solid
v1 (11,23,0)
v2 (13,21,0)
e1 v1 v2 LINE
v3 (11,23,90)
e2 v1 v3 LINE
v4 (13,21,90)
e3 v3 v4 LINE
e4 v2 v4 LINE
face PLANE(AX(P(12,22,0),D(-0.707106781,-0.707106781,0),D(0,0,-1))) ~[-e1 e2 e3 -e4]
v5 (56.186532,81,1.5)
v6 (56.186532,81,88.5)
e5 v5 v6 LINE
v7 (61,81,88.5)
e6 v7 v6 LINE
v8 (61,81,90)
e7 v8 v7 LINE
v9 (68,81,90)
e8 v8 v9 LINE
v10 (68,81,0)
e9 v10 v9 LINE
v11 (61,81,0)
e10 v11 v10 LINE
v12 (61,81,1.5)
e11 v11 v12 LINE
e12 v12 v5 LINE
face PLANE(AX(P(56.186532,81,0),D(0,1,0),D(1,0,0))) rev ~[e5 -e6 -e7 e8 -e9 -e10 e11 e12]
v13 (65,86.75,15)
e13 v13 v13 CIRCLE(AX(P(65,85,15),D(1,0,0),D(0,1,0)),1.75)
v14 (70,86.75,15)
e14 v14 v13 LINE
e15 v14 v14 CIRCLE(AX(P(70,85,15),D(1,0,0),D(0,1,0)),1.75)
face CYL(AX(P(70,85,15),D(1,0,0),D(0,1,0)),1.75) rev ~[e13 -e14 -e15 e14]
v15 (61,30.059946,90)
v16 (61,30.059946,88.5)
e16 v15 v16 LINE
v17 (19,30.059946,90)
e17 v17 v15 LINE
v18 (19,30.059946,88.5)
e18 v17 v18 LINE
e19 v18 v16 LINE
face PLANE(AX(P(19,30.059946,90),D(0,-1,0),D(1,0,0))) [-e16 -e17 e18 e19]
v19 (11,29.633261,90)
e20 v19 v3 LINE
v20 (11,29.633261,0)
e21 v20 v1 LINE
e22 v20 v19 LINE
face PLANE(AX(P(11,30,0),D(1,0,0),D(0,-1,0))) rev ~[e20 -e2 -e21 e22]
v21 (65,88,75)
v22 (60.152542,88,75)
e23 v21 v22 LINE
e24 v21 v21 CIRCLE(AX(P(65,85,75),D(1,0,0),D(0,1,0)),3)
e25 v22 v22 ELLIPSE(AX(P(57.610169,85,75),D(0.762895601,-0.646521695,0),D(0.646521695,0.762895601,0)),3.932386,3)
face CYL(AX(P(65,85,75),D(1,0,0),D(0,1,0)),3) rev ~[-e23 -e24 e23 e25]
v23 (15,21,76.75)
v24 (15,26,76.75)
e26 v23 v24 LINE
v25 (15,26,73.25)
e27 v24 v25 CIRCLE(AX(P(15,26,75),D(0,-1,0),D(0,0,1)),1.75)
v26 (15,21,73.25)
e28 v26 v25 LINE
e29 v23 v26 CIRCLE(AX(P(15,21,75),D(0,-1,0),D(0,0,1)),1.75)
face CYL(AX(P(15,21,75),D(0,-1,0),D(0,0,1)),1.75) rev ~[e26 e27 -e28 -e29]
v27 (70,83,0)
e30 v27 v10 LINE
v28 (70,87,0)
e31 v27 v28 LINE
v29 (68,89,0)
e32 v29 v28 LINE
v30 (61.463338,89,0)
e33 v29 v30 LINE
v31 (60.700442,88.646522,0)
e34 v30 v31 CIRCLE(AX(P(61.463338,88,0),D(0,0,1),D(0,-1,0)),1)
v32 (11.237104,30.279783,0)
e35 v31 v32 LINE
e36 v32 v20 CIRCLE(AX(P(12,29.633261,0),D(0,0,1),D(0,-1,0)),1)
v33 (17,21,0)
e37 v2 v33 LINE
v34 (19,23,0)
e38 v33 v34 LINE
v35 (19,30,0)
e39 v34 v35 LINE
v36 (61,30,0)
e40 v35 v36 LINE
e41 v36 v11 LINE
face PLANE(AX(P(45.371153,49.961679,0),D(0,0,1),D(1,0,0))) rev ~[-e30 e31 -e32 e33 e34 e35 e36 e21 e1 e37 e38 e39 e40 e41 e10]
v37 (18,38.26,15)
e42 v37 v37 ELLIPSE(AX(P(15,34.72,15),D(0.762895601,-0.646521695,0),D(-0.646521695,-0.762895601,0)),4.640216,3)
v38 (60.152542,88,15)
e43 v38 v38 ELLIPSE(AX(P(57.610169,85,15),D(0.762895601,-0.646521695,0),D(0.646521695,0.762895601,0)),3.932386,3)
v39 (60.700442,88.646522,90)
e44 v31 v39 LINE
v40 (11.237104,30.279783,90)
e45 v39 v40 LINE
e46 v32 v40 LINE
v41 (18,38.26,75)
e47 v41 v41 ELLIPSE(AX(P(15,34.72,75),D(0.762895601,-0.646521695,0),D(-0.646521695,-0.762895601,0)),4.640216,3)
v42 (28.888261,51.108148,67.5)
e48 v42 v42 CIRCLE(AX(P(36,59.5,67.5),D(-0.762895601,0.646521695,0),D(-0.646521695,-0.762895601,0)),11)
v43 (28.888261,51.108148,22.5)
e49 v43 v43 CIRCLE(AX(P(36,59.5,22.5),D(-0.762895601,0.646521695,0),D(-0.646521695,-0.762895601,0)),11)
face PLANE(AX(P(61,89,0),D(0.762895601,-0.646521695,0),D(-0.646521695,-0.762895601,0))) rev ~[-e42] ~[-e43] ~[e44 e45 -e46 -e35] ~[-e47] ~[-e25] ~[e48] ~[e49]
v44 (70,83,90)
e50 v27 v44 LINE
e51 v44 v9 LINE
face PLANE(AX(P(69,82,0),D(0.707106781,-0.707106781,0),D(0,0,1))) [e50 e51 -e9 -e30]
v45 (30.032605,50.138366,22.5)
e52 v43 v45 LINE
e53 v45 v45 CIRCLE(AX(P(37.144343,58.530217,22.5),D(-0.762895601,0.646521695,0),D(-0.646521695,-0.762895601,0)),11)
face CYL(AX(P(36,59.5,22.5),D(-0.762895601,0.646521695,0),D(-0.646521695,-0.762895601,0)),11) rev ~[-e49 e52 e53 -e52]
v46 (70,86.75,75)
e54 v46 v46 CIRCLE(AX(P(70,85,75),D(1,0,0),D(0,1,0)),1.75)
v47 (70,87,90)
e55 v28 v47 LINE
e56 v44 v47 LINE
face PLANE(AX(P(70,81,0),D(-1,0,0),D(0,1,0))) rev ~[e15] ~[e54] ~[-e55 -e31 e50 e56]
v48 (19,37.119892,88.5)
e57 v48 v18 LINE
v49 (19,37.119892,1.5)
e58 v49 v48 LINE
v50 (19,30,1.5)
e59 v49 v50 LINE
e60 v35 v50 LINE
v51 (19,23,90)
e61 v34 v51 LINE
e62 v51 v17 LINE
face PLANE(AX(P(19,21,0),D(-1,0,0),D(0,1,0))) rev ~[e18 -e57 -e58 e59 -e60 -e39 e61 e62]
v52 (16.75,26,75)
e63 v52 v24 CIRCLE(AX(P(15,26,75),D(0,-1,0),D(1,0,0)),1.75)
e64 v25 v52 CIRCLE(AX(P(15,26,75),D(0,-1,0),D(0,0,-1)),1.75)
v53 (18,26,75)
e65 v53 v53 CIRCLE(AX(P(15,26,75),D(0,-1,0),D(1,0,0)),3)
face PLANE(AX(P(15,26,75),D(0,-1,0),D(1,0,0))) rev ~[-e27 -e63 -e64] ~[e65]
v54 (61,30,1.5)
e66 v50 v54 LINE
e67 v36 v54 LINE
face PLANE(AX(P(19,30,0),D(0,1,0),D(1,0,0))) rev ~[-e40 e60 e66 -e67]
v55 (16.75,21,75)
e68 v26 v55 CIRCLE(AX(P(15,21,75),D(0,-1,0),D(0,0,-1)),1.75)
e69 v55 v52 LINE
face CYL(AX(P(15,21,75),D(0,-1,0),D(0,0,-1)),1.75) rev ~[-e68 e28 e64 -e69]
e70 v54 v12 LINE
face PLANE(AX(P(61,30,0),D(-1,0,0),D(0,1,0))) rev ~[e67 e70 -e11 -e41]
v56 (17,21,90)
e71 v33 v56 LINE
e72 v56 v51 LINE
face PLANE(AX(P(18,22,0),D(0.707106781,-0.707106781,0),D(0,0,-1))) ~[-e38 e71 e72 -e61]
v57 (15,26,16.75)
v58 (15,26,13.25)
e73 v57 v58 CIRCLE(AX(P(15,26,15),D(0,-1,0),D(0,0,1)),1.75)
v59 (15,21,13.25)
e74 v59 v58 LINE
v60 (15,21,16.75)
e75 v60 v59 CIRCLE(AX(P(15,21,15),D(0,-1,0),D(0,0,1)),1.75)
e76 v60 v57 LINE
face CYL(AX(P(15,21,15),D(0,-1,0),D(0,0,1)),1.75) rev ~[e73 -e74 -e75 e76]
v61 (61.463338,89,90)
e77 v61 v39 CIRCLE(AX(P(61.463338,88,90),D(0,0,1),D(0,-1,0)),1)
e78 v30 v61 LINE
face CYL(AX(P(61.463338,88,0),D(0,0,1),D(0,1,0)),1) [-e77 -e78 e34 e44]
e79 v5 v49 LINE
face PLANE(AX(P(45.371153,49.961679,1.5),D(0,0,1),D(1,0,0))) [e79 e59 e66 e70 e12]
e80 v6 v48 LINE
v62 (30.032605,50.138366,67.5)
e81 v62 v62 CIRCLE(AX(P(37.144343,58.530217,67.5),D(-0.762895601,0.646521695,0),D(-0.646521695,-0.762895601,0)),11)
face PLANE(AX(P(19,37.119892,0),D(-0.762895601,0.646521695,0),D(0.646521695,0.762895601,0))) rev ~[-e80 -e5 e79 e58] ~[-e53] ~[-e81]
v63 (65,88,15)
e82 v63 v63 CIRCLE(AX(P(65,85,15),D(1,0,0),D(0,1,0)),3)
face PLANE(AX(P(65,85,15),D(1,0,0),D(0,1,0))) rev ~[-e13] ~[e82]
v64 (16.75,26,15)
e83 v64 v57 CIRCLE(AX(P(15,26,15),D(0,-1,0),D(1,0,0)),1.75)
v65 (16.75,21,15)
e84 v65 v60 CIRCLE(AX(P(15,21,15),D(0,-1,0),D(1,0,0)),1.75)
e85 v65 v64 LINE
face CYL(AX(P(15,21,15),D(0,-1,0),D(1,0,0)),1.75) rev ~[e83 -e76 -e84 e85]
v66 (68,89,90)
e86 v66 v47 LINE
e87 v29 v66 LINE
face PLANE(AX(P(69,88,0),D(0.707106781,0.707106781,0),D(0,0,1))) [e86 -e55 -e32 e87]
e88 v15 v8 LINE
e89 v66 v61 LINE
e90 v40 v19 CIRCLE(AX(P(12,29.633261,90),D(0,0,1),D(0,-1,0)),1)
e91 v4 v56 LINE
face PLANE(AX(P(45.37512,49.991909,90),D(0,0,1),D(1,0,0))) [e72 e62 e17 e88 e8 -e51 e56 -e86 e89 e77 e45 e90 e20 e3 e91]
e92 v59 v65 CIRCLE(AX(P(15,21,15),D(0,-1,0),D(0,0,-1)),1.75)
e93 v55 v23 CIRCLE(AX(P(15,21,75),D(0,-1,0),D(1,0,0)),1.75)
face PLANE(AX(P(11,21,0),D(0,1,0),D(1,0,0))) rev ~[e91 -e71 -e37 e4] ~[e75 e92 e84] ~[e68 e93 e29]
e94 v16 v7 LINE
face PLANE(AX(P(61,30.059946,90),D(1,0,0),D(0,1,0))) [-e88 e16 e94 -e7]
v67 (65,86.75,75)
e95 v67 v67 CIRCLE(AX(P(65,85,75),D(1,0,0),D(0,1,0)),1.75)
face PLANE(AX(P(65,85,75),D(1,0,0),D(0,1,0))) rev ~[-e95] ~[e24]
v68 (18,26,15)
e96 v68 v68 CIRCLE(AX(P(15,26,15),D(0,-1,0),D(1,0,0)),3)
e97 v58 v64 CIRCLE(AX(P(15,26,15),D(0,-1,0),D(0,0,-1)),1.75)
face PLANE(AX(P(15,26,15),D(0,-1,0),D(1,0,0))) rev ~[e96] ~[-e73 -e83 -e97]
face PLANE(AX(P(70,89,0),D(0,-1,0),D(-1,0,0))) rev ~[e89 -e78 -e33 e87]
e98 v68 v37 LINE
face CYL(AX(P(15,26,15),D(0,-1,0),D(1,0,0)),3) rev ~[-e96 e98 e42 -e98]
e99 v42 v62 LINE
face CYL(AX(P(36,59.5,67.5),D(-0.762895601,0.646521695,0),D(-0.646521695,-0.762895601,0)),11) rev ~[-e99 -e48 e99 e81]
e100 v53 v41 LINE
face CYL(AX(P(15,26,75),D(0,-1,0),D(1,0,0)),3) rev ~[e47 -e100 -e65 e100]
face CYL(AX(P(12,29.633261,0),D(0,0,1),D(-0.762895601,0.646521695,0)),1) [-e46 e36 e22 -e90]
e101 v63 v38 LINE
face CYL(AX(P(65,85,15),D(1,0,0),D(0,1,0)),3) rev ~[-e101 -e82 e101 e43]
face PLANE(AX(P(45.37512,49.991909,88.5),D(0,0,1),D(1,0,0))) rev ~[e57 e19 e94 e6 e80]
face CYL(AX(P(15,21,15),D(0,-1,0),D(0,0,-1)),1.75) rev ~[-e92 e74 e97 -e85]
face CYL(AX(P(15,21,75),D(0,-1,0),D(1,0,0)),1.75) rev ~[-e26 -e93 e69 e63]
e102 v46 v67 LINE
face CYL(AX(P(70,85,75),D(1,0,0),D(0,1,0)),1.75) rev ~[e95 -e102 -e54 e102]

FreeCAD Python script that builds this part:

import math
import FreeCAD as App
import Part
import Sketcher
Q = App.Units.Quantity


def edges_at(feature, points):
    """Names of the edges that pass closest to the given points."""
    edges = feature.Shape.Edges
    near = lambda p: min(range(len(edges)), key=lambda i: edges[i].distToShape(Part.Vertex(*p))[0])
    return sorted({f"Edge{near(p) + 1}" for p in points})


def add_polygon(sketch, points):
    """Adds a closed chain of lines whose ends are joined by coincident constraints."""
    first, n = sketch.GeometryCount, len(points)
    for a, b in zip(points, points[1:] + points[:1]):
        sketch.addGeometry(Part.LineSegment(App.Vector(*a, 0), App.Vector(*b, 0)), False)
    for i in range(n):
        sketch.addConstraint(Sketcher.Constraint("Coincident", first + i, 2, first + (i + 1) % n, 1))

doc = App.newDocument("Part")
params = doc.addObject("Spreadsheet::Sheet", "Params")
for row, (alias, value) in enumerate([
    ("sketch1_width", "9 mm"),
    ("sketch1_width2", "8 mm"),
    ("pad1_length", "90 mm"),
    ("sketch2_diameter", "22 mm"),
    ("pocket1_length", "25 mm"),
    ("sketch3_radius", "1.75 mm"),
    ("pocket2_length", "25 mm"),
    ("sketch4_diameter", "3.5 mm"),
    ("pocket3_length", "25 mm"),
    ("sketch5_diameter", "6 mm"),
    ("pocket4_length", "25 mm"),
    ("sketch6_diameter", "6 mm"),
    ("pocket5_length", "25 mm"),
    ("chamfer_size", "2 mm"),
    ("fillet_radius", "1 mm"),
    ("sketch7_width", "42 mm"),
    ("pad2_length", "1.5 mm"),
    ("sketch8_width", "42 mm"),
    ("sketch8_height", "51 mm"),
    ("pad3_length", "1.5 mm"),
], start=1):
    params.set(f"A{row}", alias)
    params.set(f"B{row}", "=" + value)
    params.setAlias(f"B{row}", alias)

body = doc.addObject("PartDesign::Body", "Body")

sketch1 = body.newObject("Sketcher::SketchObject", "Sketch")
sketch1.AttachmentSupport = (doc.getObject("XY_Plane"), [""])
sketch1.MapMode = "FlatFace"
add_polygon(sketch1, [(70, 89), (61, 89), (11, 30), (11, 21), (19, 21), (19, 37), (56, 81), (70, 81)])
sketch1.addConstraint([
    Sketcher.Constraint("Horizontal", 0),
    Sketcher.Constraint("Vertical", 2),
    Sketcher.Constraint("Horizontal", 3),
    Sketcher.Constraint("Vertical", 4),
    Sketcher.Constraint("Horizontal", 6),
    Sketcher.Constraint("Vertical", 7),
    Sketcher.Constraint("Parallel", 1, 5),
    Sketcher.Constraint("Equal", 0, 2),
    Sketcher.Constraint("Equal", 3, 7),
    Sketcher.Constraint("DistanceX", 0, 2, 0, 1, Q("9 mm")),
    Sketcher.Constraint("DistanceX", 3, 1, 3, 2, Q("8 mm")),
    Sketcher.Constraint("DistanceX", -1, 1, 0, 2, Q("61 mm")),
    Sketcher.Constraint("DistanceY", -1, 1, 0, 2, Q("89 mm")),
    Sketcher.Constraint("DistanceX", -1, 1, 1, 2, Q("11 mm")),
    Sketcher.Constraint("DistanceY", -1, 1, 1, 2, Q("30 mm")),
    Sketcher.Constraint("DistanceX", 6, 1, 6, 2, Q("13.813468 mm")),
])
sketch1.setExpression("Constraints[17]", "Params.sketch1_width")
sketch1.setExpression("Constraints[18]", "Params.sketch1_width2")
pad1 = body.newObject("PartDesign::Pad", "Pad")
pad1.Profile = sketch1
pad1.setExpression("Length", "Params.pad1_length")

sketch2 = body.newObject("Sketcher::SketchObject", "Sketch001")
sketch2.Placement = App.Placement(App.Vector(-8.39475, 7.114195, 0), App.Rotation(App.Vector(-0.646521695, -0.762895601, 0), App.Vector(0, 0, 1), App.Vector(-0.762895601, 0.646521695, 0), "ZXY"))
sketch2.addGeometry([
    Part.Circle(App.Vector(-69, 68, 0), App.Vector(0, 0, 1), 11),
    Part.Circle(App.Vector(-69, 23, 0), App.Vector(0, 0, 1), 11),
], False)
sketch2.addConstraint([
    Sketcher.Constraint("Equal", 0, 1),
    Sketcher.Constraint("Vertical", 0, 3, 1, 3),
    Sketcher.Constraint("Diameter", 0, Q("22 mm")),
    Sketcher.Constraint("DistanceY", 1, 3, 0, 3, Q("45 mm")),
    Sketcher.Constraint("DistanceY", -1, 1, 0, 3, Q("67.5 mm")),
    Sketcher.Constraint("DistanceX", 0, 3, -1, 1, Q("68.667069 mm")),
])
sketch2.setExpression("Constraints[2]", "Params.sketch2_diameter")
pocket1 = body.newObject("PartDesign::Pocket", "Pocket")
pocket1.Profile = sketch2
pocket1.setExpression("Length", "Params.pocket1_length")

sketch3 = body.newObject("Sketcher::SketchObject", "Sketch002")
sketch3.AttachmentSupport = (doc.getObject("XZ_Plane"), [""])
sketch3.MapMode = "FlatFace"
sketch3.AttachmentOffset = App.Placement(App.Vector(0, 0, -21), App.Rotation())
sketch3.addGeometry([
    Part.ArcOfCircle(Part.Circle(App.Vector(15, 75, 0), App.Vector(0, 0, 1), 1.8), math.radians(0), math.radians(90)),
    Part.ArcOfCircle(Part.Circle(App.Vector(15, 75, 0), App.Vector(0, 0, 1), 1.8), math.radians(90), math.radians(270)),
    Part.ArcOfCircle(Part.Circle(App.Vector(15, 75, 0), App.Vector(0, 0, 1), 1.8), math.radians(-90), math.radians(0)),
    Part.ArcOfCircle(Part.Circle(App.Vector(15, 15, 0), App.Vector(0, 0, 1), 1.8), math.radians(0), math.radians(90)),
    Part.ArcOfCircle(Part.Circle(App.Vector(15, 15, 0), App.Vector(0, 0, 1), 1.8), math.radians(90), math.radians(270)),
    Part.ArcOfCircle(Part.Circle(App.Vector(15, 15, 0), App.Vector(0, 0, 1), 1.8), math.radians(-90), math.radians(0)),
], False)
sketch3.addConstraint([
    Sketcher.Constraint("Tangent", 0, 2, 1, 1),
    Sketcher.Constraint("Tangent", 1, 2, 2, 1),
    Sketcher.Constraint("Tangent", 2, 2, 0, 1),
    Sketcher.Constraint("Tangent", 3, 2, 4, 1),
    Sketcher.Constraint("Tangent", 4, 2, 5, 1),
    Sketcher.Constraint("Tangent", 5, 2, 3, 1),
    Sketcher.Constraint("Equal", 2, 3),
    Sketcher.Constraint("Horizontal", 1, 3, 2, 2),
    Sketcher.Constraint("Horizontal", 4, 3, 5, 2),
    Sketcher.Constraint("Vertical", 2, 3, 3, 3),
    Sketcher.Constraint("Vertical", 5, 3, 0, 2),
    Sketcher.Constraint("Vertical", 0, 2, 1, 2),
    Sketcher.Constraint("Vertical", 1, 2, 3, 2),
    Sketcher.Constraint("Vertical", 3, 2, 4, 2),
    Sketcher.Constraint("Radius", 0, Q("1.75 mm")),
    Sketcher.Constraint("DistanceX", -1, 1, 0, 3, Q("15 mm")),
    Sketcher.Constraint("DistanceY", -1, 1, 0, 3, Q("75 mm")),
    Sketcher.Constraint("DistanceY", -1, 1, 3, 3, Q("15 mm")),
])
sketch3.setExpression("Constraints[14]", "Params.sketch3_radius")
pocket2 = body.newObject("PartDesign::Pocket", "Pocket001")
pocket2.Profile = sketch3
pocket2.setExpression("Length", "Params.pocket2_length")

sketch4 = body.newObject("Sketcher::SketchObject", "Sketch003")
sketch4.AttachmentSupport = (doc.getObject("YZ_Plane"), [""])
sketch4.MapMode = "FlatFace"
sketch4.AttachmentOffset = App.Placement(App.Vector(0, 0, 70), App.Rotation())
sketch4.addGeometry([
    Part.Circle(App.Vector(85, 75, 0), App.Vector(0, 0, 1), 1.8),
    Part.Circle(App.Vector(85, 15, 0), App.Vector(0, 0, 1), 1.8),
], False)
sketch4.addConstraint([
    Sketcher.Constraint("Equal", 0, 1),
    Sketcher.Constraint("Vertical", 0, 3, 1, 3),
    Sketcher.Constraint("Diameter", 0, Q("3.5 mm")),
    Sketcher.Constraint("DistanceX", -1, 1, 0, 3, Q("85 mm")),
    Sketcher.Constraint("DistanceY", -1, 1, 0, 3, Q("75 mm")),
    Sketcher.Constraint("DistanceY", -1, 1, 1, 3, Q("15 mm")),
])
sketch4.setExpression("Constraints[2]", "Params.sketch4_diameter")
pocket3 = body.newObject("PartDesign::Pocket", "Pocket002")
pocket3.Profile = sketch4
pocket3.setExpression("Length", "Params.pocket3_length")

sketch5 = body.newObject("Sketcher::SketchObject", "Sketch004")
sketch5.AttachmentSupport = (doc.getObject("YZ_Plane"), [""])
sketch5.MapMode = "FlatFace"
sketch5.AttachmentOffset = App.Placement(App.Vector(0, 0, 65), App.Rotation())
sketch5.addGeometry([
    Part.Circle(App.Vector(85, 75, 0), App.Vector(0, 0, 1), 3),
    Part.Circle(App.Vector(85, 15, 0), App.Vector(0, 0, 1), 3),
], False)
sketch5.addConstraint([
    Sketcher.Constraint("Equal", 0, 1),
    Sketcher.Constraint("Vertical", 0, 3, 1, 3),
    Sketcher.Constraint("Diameter", 0, Q("6 mm")),
    Sketcher.Constraint("DistanceX", -1, 1, 0, 3, Q("85 mm")),
    Sketcher.Constraint("DistanceY", -1, 1, 0, 3, Q("75 mm")),
    Sketcher.Constraint("DistanceY", -1, 1, 1, 3, Q("15 mm")),
])
sketch5.setExpression("Constraints[2]", "Params.sketch5_diameter")
pocket4 = body.newObject("PartDesign::Pocket", "Pocket003")
pocket4.Profile = sketch5
pocket4.setExpression("Length", "Params.pocket4_length")

sketch6 = body.newObject("Sketcher::SketchObject", "Sketch005")
sketch6.AttachmentSupport = (doc.getObject("XZ_Plane"), [""])
sketch6.MapMode = "FlatFace"
sketch6.AttachmentOffset = App.Placement(App.Vector(0, 0, -26), App.Rotation())
sketch6.addGeometry([
    Part.Circle(App.Vector(15, 75, 0), App.Vector(0, 0, 1), 3),
    Part.Circle(App.Vector(15, 15, 0), App.Vector(0, 0, 1), 3),
], False)
sketch6.addConstraint([
    Sketcher.Constraint("Equal", 0, 1),
    Sketcher.Constraint("Vertical", 0, 3, 1, 3),
    Sketcher.Constraint("Diameter", 0, Q("6 mm")),
    Sketcher.Constraint("DistanceX", -1, 1, 0, 3, Q("15 mm")),
    Sketcher.Constraint("DistanceY", -1, 1, 0, 3, Q("75 mm")),
    Sketcher.Constraint("DistanceY", -1, 1, 1, 3, Q("15 mm")),
])
sketch6.setExpression("Constraints[2]", "Params.sketch6_diameter")
pocket5 = body.newObject("PartDesign::Pocket", "Pocket004")
pocket5.Profile = sketch6
pocket5.setExpression("Length", "Params.pocket5_length")
doc.recompute()

chamfer = body.newObject("PartDesign::Chamfer", "Chamfer")
chamfer.Base = (pocket5, edges_at(pocket5, [
    (70, 81, 45),
    (70, 89, 45),
    (19, 21, 45),
    (11, 21, 45),
]))
chamfer.setExpression("Size", "Params.chamfer_size")
doc.recompute()

fillet = body.newObject("PartDesign::Fillet", "Fillet")
fillet.Base = (chamfer, edges_at(chamfer, [(61, 89, 45), (11, 30, 45)]))
fillet.setExpression("Radius", "Params.fillet_radius")

sketch7 = body.newObject("Sketcher::SketchObject", "Sketch006")
sketch7.AttachmentSupport = (doc.getObject("XY_Plane"), [""])
sketch7.MapMode = "FlatFace"
sketch7.AttachmentOffset = App.Placement(App.Vector(0, 0, 90), App.Rotation())
add_polygon(sketch7, [(19, 37.1), (19, 30.1), (61, 30.1), (61, 81), (56.2, 81)])
sketch7.addConstraint([
    Sketcher.Constraint("Vertical", 0),
    Sketcher.Constraint("Horizontal", 1),
    Sketcher.Constraint("Vertical", 2),
    Sketcher.Constraint("Horizontal", 3),
    Sketcher.Constraint("DistanceX", 1, 1, 1, 2, Q("42 mm")),
    Sketcher.Constraint("DistanceX", -1, 1, 0, 2, Q("19 mm")),
    Sketcher.Constraint("DistanceY", -1, 1, 2, 2, Q("81 mm")),
    Sketcher.Constraint("DistanceX", 3, 2, 3, 1, Q("4.813468 mm")),
    Sketcher.Constraint("Distance", 4, Q("57.517841 mm")),
    Sketcher.Constraint("DistanceY", 0, 2, 0, 1, Q("7.059946 mm")),
])
sketch7.setExpression("Constraints[9]", "Params.sketch7_width")
pad2 = body.newObject("PartDesign::Pad", "Pad001")
pad2.Profile = sketch7
pad2.setExpression("Length", "Params.pad2_length")
pad2.Reversed = True

sketch8 = body.newObject("Sketcher::SketchObject", "Sketch007")
sketch8.AttachmentSupport = (doc.getObject("XY_Plane"), [""])
sketch8.MapMode = "FlatFace"
add_polygon(sketch8, [(61, 30), (61, 81), (56.2, 81), (19, 37.1), (19, 30)])
sketch8.addConstraint([
    Sketcher.Constraint("Vertical", 0),
    Sketcher.Constraint("Horizontal", 1),
    Sketcher.Constraint("Vertical", 3),
    Sketcher.Constraint("Horizontal", 4),
    Sketcher.Constraint("DistanceX", 4, 1, 4, 2, Q("42 mm")),
    Sketcher.Constraint("DistanceY", 0, 1, 0, 2, Q("51 mm")),
    Sketcher.Constraint("DistanceX", -1, 1, 0, 2, Q("61 mm")),
    Sketcher.Constraint("DistanceY", -1, 1, 0, 2, Q("81 mm")),
    Sketcher.Constraint("DistanceX", 1, 2, 1, 1, Q("4.813468 mm")),
    Sketcher.Constraint("Distance", 2, Q("57.517841 mm")),
])
sketch8.setExpression("Constraints[9]", "Params.sketch8_width")
sketch8.setExpression("Constraints[10]", "Params.sketch8_height")
pad3 = body.newObject("PartDesign::Pad", "Pad002")
pad3.Profile = sketch8
pad3.setExpression("Length", "Params.pad3_length")

doc.recompute()
